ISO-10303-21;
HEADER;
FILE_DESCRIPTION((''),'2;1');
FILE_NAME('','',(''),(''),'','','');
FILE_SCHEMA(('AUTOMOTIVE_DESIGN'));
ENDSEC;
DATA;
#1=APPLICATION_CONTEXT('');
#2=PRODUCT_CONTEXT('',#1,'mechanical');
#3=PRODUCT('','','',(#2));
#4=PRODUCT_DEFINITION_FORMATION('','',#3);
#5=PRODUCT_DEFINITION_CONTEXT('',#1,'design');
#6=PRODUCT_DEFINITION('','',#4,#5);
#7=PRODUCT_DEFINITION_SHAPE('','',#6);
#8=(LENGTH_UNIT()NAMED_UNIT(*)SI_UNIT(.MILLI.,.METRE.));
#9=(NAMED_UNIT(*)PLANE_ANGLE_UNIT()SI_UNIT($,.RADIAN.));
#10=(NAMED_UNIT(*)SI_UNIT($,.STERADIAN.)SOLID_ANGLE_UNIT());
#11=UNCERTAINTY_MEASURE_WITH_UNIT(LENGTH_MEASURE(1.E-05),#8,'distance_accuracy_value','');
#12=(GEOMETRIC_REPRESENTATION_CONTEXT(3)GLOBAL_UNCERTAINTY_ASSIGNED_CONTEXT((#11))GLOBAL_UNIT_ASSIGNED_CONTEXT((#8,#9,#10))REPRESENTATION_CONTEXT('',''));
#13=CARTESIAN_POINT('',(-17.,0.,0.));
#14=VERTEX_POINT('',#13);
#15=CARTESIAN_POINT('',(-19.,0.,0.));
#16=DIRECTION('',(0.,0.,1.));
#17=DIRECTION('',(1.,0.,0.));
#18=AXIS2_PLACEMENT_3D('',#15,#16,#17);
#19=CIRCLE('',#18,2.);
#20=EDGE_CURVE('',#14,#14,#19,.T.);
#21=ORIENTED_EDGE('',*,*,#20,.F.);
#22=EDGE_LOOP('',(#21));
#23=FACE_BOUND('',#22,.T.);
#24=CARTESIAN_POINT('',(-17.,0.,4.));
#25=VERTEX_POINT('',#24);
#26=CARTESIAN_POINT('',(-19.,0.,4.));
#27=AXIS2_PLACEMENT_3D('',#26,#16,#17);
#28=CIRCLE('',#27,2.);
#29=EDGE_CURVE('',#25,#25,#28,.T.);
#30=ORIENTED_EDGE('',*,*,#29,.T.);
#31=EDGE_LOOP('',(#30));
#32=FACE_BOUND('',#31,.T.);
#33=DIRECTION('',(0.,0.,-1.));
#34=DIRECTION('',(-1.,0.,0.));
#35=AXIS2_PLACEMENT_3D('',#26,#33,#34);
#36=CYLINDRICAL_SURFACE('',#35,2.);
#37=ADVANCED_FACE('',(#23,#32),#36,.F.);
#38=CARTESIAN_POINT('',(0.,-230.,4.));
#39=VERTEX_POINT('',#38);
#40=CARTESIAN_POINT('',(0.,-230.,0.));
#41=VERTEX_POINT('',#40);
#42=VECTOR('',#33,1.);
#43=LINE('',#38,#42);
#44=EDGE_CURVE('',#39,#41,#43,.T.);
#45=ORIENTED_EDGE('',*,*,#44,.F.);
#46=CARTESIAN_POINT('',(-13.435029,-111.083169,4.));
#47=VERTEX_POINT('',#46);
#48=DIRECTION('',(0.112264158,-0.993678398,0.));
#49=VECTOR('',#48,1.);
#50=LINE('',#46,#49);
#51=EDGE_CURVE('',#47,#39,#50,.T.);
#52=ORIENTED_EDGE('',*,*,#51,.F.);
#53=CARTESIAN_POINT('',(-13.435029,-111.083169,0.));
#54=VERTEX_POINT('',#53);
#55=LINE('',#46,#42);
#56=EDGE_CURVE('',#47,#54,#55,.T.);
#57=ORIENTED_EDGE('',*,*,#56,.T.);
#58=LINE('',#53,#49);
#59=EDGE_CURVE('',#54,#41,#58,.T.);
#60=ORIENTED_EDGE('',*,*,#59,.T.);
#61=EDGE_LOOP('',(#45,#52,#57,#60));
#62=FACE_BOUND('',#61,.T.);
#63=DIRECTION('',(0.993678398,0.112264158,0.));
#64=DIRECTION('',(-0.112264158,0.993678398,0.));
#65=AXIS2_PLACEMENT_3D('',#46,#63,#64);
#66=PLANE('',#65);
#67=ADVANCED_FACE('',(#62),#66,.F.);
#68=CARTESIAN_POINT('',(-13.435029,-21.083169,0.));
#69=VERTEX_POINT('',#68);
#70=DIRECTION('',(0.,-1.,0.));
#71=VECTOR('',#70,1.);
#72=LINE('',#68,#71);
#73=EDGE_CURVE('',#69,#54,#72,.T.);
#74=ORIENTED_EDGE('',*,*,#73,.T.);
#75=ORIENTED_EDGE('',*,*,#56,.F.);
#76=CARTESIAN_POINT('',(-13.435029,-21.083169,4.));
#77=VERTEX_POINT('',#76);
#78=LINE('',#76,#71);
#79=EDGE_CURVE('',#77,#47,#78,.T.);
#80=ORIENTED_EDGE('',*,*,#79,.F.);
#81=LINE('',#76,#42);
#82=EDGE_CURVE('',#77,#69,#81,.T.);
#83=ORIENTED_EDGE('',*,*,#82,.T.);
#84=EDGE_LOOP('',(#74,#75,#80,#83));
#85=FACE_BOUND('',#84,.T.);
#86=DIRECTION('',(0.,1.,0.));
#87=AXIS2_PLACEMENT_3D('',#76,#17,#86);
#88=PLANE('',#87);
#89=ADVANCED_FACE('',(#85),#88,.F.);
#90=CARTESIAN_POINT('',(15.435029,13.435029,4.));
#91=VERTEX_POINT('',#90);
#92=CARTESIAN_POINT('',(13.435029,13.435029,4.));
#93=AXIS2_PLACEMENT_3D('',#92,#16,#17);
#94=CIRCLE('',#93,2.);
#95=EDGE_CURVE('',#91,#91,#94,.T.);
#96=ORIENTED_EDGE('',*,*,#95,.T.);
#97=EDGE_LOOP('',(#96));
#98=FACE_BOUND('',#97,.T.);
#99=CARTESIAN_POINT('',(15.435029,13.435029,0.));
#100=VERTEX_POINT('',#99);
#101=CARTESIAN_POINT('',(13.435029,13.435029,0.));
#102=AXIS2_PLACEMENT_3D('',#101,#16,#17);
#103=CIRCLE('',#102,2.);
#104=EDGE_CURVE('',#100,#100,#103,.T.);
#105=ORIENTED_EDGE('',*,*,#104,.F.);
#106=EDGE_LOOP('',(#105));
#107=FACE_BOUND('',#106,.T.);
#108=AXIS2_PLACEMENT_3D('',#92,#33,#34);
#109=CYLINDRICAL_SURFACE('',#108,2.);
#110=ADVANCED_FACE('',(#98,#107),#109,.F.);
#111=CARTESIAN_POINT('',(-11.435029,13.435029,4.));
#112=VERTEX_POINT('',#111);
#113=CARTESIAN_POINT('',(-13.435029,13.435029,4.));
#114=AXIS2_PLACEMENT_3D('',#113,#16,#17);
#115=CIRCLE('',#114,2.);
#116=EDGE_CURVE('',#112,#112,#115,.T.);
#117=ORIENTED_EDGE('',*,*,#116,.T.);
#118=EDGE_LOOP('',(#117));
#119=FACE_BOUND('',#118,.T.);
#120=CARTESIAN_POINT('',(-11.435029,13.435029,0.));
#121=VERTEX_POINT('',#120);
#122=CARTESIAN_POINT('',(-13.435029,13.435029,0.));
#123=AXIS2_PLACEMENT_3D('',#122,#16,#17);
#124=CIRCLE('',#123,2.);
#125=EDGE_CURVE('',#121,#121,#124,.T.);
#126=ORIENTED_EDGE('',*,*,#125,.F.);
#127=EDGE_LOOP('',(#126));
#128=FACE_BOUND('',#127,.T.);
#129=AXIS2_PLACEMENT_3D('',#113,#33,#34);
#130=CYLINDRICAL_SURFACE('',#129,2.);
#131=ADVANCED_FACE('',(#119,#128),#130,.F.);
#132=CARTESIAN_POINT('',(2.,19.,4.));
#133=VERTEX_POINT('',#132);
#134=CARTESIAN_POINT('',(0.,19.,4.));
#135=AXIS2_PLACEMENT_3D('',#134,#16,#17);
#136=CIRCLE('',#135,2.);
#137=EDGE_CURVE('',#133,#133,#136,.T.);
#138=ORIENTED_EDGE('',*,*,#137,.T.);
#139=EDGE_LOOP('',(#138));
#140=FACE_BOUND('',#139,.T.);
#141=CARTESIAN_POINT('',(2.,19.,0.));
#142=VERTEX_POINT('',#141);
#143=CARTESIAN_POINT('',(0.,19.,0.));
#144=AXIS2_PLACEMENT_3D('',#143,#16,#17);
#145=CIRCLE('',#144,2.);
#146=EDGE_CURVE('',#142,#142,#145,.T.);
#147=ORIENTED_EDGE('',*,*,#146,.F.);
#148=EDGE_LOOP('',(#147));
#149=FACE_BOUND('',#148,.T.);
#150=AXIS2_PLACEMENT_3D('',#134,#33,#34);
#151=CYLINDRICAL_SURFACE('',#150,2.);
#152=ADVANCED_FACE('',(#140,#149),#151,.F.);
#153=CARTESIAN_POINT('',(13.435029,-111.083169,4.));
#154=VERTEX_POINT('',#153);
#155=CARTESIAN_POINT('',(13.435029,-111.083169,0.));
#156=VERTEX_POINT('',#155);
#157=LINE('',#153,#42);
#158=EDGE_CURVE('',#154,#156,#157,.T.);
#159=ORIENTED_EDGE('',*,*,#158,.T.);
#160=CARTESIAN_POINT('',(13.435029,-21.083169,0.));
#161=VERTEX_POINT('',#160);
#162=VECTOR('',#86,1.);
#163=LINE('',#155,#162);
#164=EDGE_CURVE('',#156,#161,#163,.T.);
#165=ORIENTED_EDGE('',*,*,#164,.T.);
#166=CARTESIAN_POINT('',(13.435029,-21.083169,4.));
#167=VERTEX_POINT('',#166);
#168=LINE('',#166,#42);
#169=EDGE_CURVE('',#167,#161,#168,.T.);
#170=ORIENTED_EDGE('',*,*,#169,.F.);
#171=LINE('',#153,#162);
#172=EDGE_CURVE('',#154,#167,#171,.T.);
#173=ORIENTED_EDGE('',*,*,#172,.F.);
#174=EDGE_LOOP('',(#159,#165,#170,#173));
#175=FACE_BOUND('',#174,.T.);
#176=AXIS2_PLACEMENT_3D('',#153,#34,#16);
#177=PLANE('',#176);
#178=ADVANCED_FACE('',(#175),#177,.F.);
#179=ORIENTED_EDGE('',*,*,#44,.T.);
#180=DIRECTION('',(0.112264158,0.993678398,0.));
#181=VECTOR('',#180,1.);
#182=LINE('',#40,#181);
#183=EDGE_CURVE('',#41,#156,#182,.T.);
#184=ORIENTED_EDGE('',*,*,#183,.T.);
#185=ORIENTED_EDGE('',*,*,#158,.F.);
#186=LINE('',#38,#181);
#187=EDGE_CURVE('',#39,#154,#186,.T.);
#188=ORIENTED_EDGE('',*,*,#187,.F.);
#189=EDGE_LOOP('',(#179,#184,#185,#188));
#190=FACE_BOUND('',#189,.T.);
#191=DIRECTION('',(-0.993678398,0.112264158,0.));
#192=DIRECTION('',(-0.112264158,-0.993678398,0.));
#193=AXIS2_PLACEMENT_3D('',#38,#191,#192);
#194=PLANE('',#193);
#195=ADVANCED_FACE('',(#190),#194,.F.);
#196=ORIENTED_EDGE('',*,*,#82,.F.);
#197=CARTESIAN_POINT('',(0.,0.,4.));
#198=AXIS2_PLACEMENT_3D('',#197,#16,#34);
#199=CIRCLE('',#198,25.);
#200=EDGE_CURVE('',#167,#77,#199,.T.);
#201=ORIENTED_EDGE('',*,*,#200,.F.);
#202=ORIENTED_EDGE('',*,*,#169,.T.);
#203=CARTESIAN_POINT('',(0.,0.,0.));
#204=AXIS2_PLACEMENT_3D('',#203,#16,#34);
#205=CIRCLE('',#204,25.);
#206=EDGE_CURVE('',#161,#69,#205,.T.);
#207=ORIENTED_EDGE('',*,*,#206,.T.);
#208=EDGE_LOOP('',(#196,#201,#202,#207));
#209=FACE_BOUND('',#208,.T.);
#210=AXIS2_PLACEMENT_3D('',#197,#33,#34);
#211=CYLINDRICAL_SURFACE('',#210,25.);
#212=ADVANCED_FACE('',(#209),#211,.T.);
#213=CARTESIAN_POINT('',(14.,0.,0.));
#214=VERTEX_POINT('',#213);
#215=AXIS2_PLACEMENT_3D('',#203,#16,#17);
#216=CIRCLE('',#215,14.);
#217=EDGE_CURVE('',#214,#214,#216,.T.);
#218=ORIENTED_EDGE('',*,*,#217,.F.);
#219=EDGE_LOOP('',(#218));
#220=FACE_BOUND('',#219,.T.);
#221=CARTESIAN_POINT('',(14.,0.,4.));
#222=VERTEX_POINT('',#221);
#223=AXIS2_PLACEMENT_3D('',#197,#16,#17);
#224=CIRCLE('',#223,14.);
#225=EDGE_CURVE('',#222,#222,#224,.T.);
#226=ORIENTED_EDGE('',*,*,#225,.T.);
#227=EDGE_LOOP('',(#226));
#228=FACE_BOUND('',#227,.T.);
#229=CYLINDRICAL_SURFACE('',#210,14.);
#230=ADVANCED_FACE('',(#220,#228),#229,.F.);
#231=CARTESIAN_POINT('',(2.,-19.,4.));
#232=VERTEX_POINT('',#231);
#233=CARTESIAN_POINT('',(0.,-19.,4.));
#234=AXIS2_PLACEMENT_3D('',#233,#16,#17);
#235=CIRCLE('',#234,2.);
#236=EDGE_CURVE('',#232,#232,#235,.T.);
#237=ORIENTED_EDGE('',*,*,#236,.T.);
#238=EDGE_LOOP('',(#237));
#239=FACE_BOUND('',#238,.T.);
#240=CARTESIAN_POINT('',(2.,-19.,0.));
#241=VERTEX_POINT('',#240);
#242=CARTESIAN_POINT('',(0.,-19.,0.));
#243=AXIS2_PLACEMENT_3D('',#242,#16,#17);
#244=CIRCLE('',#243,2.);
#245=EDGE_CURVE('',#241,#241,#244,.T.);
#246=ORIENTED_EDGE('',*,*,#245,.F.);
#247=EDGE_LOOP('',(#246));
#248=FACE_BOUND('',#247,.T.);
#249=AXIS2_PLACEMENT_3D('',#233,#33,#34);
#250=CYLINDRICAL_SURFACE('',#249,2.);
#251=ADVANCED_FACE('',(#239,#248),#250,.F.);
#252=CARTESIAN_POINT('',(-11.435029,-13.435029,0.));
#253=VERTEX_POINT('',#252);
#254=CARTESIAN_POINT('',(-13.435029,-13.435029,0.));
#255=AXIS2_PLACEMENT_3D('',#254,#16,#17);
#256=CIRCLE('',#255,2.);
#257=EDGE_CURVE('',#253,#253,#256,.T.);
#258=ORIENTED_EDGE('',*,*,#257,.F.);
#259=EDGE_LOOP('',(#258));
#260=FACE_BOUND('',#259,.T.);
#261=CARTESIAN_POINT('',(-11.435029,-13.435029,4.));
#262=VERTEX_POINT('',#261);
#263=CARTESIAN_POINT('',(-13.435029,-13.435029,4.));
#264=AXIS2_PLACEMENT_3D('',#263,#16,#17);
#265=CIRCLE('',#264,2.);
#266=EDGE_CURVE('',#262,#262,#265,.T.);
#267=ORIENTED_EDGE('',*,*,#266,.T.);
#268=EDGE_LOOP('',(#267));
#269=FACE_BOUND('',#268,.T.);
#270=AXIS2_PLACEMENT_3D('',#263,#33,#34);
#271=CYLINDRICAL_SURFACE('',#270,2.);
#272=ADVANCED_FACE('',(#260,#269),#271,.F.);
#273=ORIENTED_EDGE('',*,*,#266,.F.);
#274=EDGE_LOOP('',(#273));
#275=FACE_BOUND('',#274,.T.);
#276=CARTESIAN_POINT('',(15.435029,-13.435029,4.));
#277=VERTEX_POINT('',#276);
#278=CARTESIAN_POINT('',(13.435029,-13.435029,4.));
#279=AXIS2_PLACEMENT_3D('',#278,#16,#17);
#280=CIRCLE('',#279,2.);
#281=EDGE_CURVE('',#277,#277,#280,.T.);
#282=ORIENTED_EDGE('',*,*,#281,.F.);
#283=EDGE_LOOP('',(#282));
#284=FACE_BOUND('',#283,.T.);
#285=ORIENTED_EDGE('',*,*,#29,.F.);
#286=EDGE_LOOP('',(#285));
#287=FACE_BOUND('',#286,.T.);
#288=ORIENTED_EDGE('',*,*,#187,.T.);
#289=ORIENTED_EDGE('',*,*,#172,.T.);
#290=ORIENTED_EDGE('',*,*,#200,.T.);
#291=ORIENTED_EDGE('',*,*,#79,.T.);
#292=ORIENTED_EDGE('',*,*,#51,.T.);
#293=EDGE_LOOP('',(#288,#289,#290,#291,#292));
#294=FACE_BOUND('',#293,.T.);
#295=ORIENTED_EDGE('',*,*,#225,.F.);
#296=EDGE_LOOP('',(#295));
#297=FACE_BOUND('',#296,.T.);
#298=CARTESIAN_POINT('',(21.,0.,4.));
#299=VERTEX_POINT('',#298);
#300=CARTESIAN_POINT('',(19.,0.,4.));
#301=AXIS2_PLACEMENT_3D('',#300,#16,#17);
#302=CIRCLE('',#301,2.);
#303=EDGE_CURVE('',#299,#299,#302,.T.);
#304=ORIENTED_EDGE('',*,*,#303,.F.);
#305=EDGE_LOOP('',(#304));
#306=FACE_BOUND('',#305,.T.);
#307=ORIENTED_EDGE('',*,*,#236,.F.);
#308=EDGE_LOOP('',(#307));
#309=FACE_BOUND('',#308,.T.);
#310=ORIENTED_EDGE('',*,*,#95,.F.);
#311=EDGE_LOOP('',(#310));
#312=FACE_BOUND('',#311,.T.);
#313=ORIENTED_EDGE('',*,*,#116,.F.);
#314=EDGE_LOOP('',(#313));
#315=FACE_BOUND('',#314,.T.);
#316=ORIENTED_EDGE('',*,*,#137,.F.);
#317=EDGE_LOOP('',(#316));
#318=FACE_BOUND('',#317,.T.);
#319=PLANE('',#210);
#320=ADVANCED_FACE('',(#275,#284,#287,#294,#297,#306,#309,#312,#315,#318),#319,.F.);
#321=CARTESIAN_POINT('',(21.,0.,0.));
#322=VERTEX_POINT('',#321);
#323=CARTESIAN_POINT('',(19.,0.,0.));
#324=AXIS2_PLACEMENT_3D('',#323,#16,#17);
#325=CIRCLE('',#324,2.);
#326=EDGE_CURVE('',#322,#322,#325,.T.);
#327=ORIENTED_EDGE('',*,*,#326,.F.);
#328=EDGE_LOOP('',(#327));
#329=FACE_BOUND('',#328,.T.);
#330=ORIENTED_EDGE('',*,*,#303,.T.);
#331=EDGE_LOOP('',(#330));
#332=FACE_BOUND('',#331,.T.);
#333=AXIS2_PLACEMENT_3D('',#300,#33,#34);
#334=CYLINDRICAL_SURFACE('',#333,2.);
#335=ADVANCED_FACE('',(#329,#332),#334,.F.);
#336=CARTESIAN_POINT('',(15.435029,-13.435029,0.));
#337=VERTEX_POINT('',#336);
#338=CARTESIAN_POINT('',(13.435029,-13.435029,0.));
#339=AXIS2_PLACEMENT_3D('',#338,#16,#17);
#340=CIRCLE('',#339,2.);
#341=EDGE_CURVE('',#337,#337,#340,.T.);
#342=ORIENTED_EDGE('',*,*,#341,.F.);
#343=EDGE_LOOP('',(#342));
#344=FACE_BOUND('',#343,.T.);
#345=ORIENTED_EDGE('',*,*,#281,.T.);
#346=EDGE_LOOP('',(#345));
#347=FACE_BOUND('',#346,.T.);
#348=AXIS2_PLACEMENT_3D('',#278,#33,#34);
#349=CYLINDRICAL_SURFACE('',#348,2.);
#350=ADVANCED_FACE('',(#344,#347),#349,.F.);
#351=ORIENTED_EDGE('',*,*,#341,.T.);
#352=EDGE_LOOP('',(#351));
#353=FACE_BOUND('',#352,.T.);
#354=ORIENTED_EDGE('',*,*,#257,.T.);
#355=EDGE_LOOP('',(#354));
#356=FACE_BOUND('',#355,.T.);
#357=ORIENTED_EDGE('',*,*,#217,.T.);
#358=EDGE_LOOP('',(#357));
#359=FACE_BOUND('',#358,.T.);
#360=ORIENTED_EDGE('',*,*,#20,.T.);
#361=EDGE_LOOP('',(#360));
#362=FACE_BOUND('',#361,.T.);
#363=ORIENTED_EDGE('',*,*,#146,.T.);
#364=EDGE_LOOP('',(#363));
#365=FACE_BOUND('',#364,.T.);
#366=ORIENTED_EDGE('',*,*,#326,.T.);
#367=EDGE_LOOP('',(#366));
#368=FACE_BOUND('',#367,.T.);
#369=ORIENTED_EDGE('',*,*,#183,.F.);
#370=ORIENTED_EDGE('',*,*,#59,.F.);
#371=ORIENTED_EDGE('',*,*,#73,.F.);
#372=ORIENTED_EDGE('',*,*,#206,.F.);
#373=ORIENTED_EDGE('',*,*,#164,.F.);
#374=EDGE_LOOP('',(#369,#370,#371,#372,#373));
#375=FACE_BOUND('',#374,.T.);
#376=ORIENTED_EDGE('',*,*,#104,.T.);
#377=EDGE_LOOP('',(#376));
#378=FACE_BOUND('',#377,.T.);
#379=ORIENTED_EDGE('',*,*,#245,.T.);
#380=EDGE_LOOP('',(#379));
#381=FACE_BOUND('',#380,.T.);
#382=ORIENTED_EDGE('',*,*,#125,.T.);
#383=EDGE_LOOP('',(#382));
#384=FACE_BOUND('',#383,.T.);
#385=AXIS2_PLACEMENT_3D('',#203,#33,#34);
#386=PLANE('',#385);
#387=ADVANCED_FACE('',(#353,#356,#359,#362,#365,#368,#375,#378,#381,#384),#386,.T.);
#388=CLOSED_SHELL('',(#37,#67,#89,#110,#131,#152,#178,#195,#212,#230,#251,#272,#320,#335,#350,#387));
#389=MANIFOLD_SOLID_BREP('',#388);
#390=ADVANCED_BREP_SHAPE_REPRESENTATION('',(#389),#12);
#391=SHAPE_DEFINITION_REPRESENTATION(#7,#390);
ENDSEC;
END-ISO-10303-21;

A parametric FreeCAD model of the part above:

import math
import FreeCAD as App
import Part
import Sketcher

V = App.Vector
Q = App.Units.Quantity

doc = App.newDocument("Part")
body = doc.addObject("PartDesign::Body", "Body")

# Sketch on XY plane
sketch1 = body.newObject("Sketcher::SketchObject", "Sketch")
sketch1.AttachmentSupport = (doc.getObject("XY_Plane"), [""])
sketch1.MapMode = "FlatFace"
sketch1.addGeometry(Part.LineSegment(V(-13.4, -21.1, 0), V(-13.4, -111.1, 0)), False)
sketch1.addGeometry(Part.LineSegment(V(-13.4, -111.1, 0), V(0, -230, 0)), False)
sketch1.addGeometry(Part.LineSegment(V(0, -230, 0), V(13.4, -111.1, 0)), False)
sketch1.addGeometry(Part.LineSegment(V(13.4, -111.1, 0), V(13.4, -21.1, 0)), False)
sketch1.addGeometry(Part.ArcOfCircle(Part.Circle(V(0, 0, 0), V(0, 0, 1), 25), math.radians(-57), math.radians(237)), False)
sketch1.addGeometry(Part.Circle(V(-13.4, -13.4, 0), V(0, 0, 1), 2), False)
sketch1.addGeometry(Part.Circle(V(0, -19, 0), V(0, 0, 1), 2), False)
sketch1.addGeometry(Part.Circle(V(13.4, -13.4, 0), V(0, 0, 1), 2), False)
sketch1.addGeometry(Part.Circle(V(-19, 0, 0), V(0, 0, 1), 2), False)
sketch1.addGeometry(Part.Circle(V(-13.4, 13.4, 0), V(0, 0, 1), 2), False)
sketch1.addGeometry(Part.Circle(V(0, 0, 0), V(0, 0, 1), 14), False)
sketch1.addGeometry(Part.Circle(V(19, 0, 0), V(0, 0, 1), 2), False)
sketch1.addGeometry(Part.Circle(V(0, 19, 0), V(0, 0, 1), 2), False)
sketch1.addGeometry(Part.Circle(V(13.4, 13.4, 0), V(0, 0, 1), 2), False)
sketch1.addConstraint(Sketcher.Constraint("Coincident", 0, 2, 1, 1))
sketch1.addConstraint(Sketcher.Constraint("Coincident", 1, 2, 2, 1))
sketch1.addConstraint(Sketcher.Constraint("Coincident", 2, 2, 3, 1))
sketch1.addConstraint(Sketcher.Constraint("Coincident", 3, 2, 4, 1))
sketch1.addConstraint(Sketcher.Constraint("Coincident", 4, 2, 0, 1))
sketch1.addConstraint(Sketcher.Constraint("Vertical", 0))
sketch1.addConstraint(Sketcher.Constraint("Vertical", 3))
sketch1.addConstraint(Sketcher.Constraint("Coincident", 4, 3, -1, 1))
sketch1.addConstraint(Sketcher.Constraint("Coincident", 10, 3, -1, 1))
sketch1.addConstraint(Sketcher.Constraint("Equal", 5, 6))
sketch1.addConstraint(Sketcher.Constraint("Equal", 6, 7))
sketch1.addConstraint(Sketcher.Constraint("Equal", 7, 8))
sketch1.addConstraint(Sketcher.Constraint("Equal", 8, 9))
sketch1.addConstraint(Sketcher.Constraint("Equal", 9, 11))
sketch1.addConstraint(Sketcher.Constraint("Equal", 11, 12))
sketch1.addConstraint(Sketcher.Constraint("Equal", 12, 13))
sketch1.addConstraint(Sketcher.Constraint("Symmetric", 7, 3, 9, 3, -1, 1))
sketch1.addConstraint(Sketcher.Constraint("Symmetric", 8, 3, 11, 3, -1, 1))
sketch1.addConstraint(Sketcher.Constraint("Symmetric", 6, 3, 12, 3, -1, 1))
sketch1.addConstraint(Sketcher.Constraint("Symmetric", 5, 3, 13, 3, -1, 1))
sketch1.addConstraint(Sketcher.Constraint("Symmetric", 5, 3, 7, 3, -2))
sketch1.addConstraint(Sketcher.Constraint("Symmetric", 0, 2, 2, 2, -2))
sketch1.addConstraint(Sketcher.Constraint("PointOnObject", 6, 3, -2))
sketch1.addConstraint(Sketcher.Constraint("PointOnObject", 8, 3, -1))
sketch1.addConstraint(Sketcher.Constraint("PointOnObject", 1, 2, -2))
sketch1.addConstraint(Sketcher.Constraint("Vertical", 9, 3, 0, 2))
sketch1.addConstraint(Sketcher.Constraint("Diameter", 5, Q("4 mm")))
sketch1.addConstraint(Sketcher.Constraint("Diameter", 10, Q("28 mm")))
sketch1.addConstraint(Sketcher.Constraint("Radius", 4, Q("25 mm")))
sketch1.addConstraint(Sketcher.Constraint("DistanceY", 0, 2, 0, 1, Q("90 mm")))
sketch1.addConstraint(Sketcher.Constraint("DistanceY", 6, 3, -1, 1, Q("19 mm")))
sketch1.addConstraint(Sketcher.Constraint("DistanceX", 8, 3, -1, 1, Q("19 mm")))
sketch1.addConstraint(Sketcher.Constraint("DistanceY", 1, 2, -1, 1, Q("230 mm")))
sketch1.addConstraint(Sketcher.Constraint("Distance", 1, Q("119.673359 mm")))
sketch1.addConstraint(Sketcher.Constraint("DistanceY", 5, 3, -1, 1, Q("13.435029 mm")))
pad1 = body.newObject("PartDesign::Pad", "Pad")
pad1.Profile = sketch1
pad1.Length = 4

doc.recompute()
